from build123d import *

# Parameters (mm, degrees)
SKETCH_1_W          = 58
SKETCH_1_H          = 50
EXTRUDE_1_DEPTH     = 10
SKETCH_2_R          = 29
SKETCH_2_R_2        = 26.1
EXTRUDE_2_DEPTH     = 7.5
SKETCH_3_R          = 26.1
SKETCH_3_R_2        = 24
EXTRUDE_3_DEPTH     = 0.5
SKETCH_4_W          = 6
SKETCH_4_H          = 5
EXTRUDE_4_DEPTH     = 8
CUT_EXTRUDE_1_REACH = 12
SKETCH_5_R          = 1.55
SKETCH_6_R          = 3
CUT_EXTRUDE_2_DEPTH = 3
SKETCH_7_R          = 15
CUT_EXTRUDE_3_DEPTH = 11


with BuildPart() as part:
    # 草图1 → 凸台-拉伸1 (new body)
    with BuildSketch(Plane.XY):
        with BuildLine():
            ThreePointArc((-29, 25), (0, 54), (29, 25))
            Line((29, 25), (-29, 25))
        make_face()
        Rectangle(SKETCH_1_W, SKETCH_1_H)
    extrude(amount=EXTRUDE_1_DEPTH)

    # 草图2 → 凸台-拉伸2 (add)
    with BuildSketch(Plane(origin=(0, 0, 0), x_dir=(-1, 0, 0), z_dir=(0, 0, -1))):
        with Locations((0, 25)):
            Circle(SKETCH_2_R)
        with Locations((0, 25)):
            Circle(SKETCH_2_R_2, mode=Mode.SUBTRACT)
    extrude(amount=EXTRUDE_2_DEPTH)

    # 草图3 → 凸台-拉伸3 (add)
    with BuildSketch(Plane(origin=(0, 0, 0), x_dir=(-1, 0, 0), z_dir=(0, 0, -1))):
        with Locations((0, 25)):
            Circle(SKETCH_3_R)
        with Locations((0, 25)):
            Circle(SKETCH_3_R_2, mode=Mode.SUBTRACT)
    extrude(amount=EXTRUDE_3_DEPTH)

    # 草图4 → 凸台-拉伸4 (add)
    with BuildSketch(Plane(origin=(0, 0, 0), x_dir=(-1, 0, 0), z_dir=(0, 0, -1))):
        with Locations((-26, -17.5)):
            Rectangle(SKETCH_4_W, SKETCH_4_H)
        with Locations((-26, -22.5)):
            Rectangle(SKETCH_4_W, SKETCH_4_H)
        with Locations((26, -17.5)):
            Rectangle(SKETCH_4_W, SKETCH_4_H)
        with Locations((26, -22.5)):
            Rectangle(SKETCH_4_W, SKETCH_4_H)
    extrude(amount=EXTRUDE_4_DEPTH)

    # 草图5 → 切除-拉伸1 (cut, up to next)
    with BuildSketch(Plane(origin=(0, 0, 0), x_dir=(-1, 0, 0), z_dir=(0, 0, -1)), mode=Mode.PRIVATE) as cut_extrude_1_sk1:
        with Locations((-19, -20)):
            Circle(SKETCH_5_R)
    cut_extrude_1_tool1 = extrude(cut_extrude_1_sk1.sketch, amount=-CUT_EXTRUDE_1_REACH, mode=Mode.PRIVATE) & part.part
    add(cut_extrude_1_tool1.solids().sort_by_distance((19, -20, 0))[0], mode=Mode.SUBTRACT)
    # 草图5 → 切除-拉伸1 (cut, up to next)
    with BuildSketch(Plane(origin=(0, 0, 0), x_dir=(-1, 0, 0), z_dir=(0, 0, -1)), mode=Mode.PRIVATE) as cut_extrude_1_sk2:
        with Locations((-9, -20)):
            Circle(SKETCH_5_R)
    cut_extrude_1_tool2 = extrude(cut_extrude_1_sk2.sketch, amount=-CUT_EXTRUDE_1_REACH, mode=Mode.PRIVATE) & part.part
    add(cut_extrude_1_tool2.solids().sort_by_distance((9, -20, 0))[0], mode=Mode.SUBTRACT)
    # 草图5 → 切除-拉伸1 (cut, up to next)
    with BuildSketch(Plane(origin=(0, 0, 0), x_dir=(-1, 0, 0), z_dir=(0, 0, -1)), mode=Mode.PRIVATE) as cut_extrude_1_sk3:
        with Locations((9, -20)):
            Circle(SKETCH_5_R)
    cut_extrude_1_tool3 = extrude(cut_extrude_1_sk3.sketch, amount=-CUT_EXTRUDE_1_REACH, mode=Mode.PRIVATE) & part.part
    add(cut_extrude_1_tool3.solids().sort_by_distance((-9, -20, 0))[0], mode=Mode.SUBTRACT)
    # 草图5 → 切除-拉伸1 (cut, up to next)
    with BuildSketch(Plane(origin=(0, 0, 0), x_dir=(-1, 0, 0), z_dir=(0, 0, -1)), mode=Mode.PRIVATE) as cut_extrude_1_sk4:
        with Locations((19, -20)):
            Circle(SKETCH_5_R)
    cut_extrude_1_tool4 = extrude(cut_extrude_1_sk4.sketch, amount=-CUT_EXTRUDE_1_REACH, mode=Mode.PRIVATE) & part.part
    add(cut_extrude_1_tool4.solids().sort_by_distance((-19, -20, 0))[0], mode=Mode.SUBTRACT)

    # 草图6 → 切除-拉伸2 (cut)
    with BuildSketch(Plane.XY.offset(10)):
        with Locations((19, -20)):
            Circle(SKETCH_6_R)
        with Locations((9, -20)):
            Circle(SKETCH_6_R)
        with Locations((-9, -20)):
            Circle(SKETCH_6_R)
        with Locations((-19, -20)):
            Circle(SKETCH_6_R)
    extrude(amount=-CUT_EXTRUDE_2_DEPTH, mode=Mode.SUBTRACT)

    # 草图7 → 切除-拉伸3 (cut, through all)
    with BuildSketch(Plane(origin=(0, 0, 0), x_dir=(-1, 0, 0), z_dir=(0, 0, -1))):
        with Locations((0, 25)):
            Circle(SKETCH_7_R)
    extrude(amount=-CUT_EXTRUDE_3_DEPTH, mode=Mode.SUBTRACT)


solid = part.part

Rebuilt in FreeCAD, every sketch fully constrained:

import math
import FreeCAD as App
import Part
import Sketcher
Q = App.Units.Quantity


def add_polygon(sketch, points):
    """Adds a closed chain of lines whose ends are joined by coincident constraints."""
    first, n = sketch.GeometryCount, len(points)
    for a, b in zip(points, points[1:] + points[:1]):
        sketch.addGeometry(Part.LineSegment(App.Vector(*a, 0), App.Vector(*b, 0)), False)
    for i in range(n):
        sketch.addConstraint(Sketcher.Constraint("Coincident", first + i, 2, first + (i + 1) % n, 1))

doc = App.newDocument("Part")
params = doc.addObject("Spreadsheet::Sheet", "Params")
for row, (alias, value) in enumerate([
    ("sketch1_radius", "29 mm"),
    ("sketch1_height", "50 mm"),
    ("pad1_length", "10 mm"),
    ("sketch2_diameter", "58 mm"),
    ("sketch2_diameter2", "52.2 mm"),
    ("pad2_length", "7.5 mm"),
    ("sketch3_diameter", "48 mm"),
    ("sketch3_diameter2", "52.2 mm"),
    ("pad3_length", "0.5 mm"),
    ("sketch4_width", "6 mm"),
    ("sketch4_height", "10 mm"),
    ("pad4_length", "8 mm"),
    ("sketch5_diameter", "3.1 mm"),
    ("sketch6_diameter", "3.1 mm"),
    ("sketch7_diameter", "3.1 mm"),
    ("sketch8_diameter", "3.1 mm"),
    ("sketch9_diameter", "6 mm"),
    ("pocket5_length", "3 mm"),
    ("sketch10_diameter", "30 mm"),
], start=1):
    params.set(f"A{row}", alias)
    params.set(f"B{row}", "=" + value)
    params.setAlias(f"B{row}", alias)

body = doc.addObject("PartDesign::Body", "Body")

# Sketch on XY plane
sketch1 = body.newObject("Sketcher::SketchObject", "Sketch")
sketch1.AttachmentSupport = (doc.getObject("XY_Plane"), [""])
sketch1.MapMode = "FlatFace"
sketch1.addGeometry(Part.ArcOfCircle(Part.Circle(App.Vector(0, 25, 0), App.Vector(0, 0, 1), 29), math.radians(0), math.radians(180)), False)
sketch1.addGeometry(Part.LineSegment(App.Vector(-29, 25, 0), App.Vector(-29, -25, 0)), False)
sketch1.addGeometry(Part.LineSegment(App.Vector(-29, -25, 0), App.Vector(29, -25, 0)), False)
sketch1.addGeometry(Part.LineSegment(App.Vector(29, -25, 0), App.Vector(29, 25, 0)), False)
sketch1.addConstraint(Sketcher.Constraint("Tangent", 0, 2, 1, 1))
sketch1.addConstraint(Sketcher.Constraint("Coincident", 1, 2, 2, 1))
sketch1.addConstraint(Sketcher.Constraint("Coincident", 2, 2, 3, 1))
sketch1.addConstraint(Sketcher.Constraint("Tangent", 3, 2, 0, 1))
sketch1.addConstraint(Sketcher.Constraint("Vertical", 1))
sketch1.addConstraint(Sketcher.Constraint("Horizontal", 2))
sketch1.addConstraint(Sketcher.Constraint("Vertical", 3))
sketch1.addConstraint(Sketcher.Constraint("Symmetric", 0, 2, 2, 2, -1, 1))
sketch1.addConstraint(Sketcher.Constraint("Radius", 0, Q("29 mm")))
sketch1.addConstraint(Sketcher.Constraint("DistanceY", 1, 2, 1, 1, Q("50 mm")))
sketch1.setExpression("Constraints[8]", "Params.sketch1_radius")
sketch1.setExpression("Constraints[9]", "Params.sketch1_height")
pad1 = body.newObject("PartDesign::Pad", "Pad")
pad1.Profile = sketch1
pad1.setExpression("Length", "Params.pad1_length")

# Sketch on XY plane
sketch2 = body.newObject("Sketcher::SketchObject", "Sketch001")
sketch2.AttachmentSupport = (doc.getObject("XY_Plane"), [""])
sketch2.MapMode = "FlatFace"
sketch2.addGeometry(Part.Circle(App.Vector(0, 25, 0), App.Vector(0, 0, 1), 29), False)
sketch2.addGeometry(Part.Circle(App.Vector(0, 25, 0), App.Vector(0, 0, 1), 26.1), False)
sketch2.addConstraint(Sketcher.Constraint("Coincident", 1, 3, 0, 3))
sketch2.addConstraint(Sketcher.Constraint("PointOnObject", 0, 3, -2))
sketch2.addConstraint(Sketcher.Constraint("Diameter", 0, Q("58 mm")))
sketch2.addConstraint(Sketcher.Constraint("Diameter", 1, Q("52.2 mm")))
sketch2.addConstraint(Sketcher.Constraint("DistanceY", -1, 1, 0, 3, Q("25 mm")))
sketch2.setExpression("Constraints[2]", "Params.sketch2_diameter")
sketch2.setExpression("Constraints[3]", "Params.sketch2_diameter2")
pad2 = body.newObject("PartDesign::Pad", "Pad001")
pad2.Profile = sketch2
pad2.setExpression("Length", "Params.pad2_length")
pad2.Reversed = True

# Sketch on XY plane
sketch3 = body.newObject("Sketcher::SketchObject", "Sketch002")
sketch3.AttachmentSupport = (doc.getObject("XY_Plane"), [""])
sketch3.MapMode = "FlatFace"
sketch3.addGeometry(Part.Circle(App.Vector(0, 25, 0), App.Vector(0, 0, 1), 26.1), False)
sketch3.addGeometry(Part.Circle(App.Vector(0, 25, 0), App.Vector(0, 0, 1), 24), False)
sketch3.addConstraint(Sketcher.Constraint("Coincident", 1, 3, 0, 3))
sketch3.addConstraint(Sketcher.Constraint("PointOnObject", 0, 3, -2))
sketch3.addConstraint(Sketcher.Constraint("Diameter", 1, Q("48 mm")))
sketch3.addConstraint(Sketcher.Constraint("Diameter", 0, Q("52.2 mm")))
sketch3.addConstraint(Sketcher.Constraint("DistanceY", -1, 1, 0, 3, Q("25 mm")))
sketch3.setExpression("Constraints[2]", "Params.sketch3_diameter")
sketch3.setExpression("Constraints[3]", "Params.sketch3_diameter2")
pad3 = body.newObject("PartDesign::Pad", "Pad002")
pad3.Profile = sketch3
pad3.setExpression("Length", "Params.pad3_length")
pad3.Reversed = True

# Sketch on XY plane
sketch4 = body.newObject("Sketcher::SketchObject", "Sketch003")
sketch4.AttachmentSupport = (doc.getObject("XY_Plane"), [""])
sketch4.MapMode = "FlatFace"
add_polygon(sketch4, [(29, -15), (29, -25), (23, -25), (23, -15)])  # lines 0-3
add_polygon(sketch4, [(-23, -15), (-23, -25), (-29, -25), (-29, -15)])  # lines 4-7
sketch4.addConstraint(Sketcher.Constraint("Vertical", 0))
sketch4.addConstraint(Sketcher.Constraint("Horizontal", 1))
sketch4.addConstraint(Sketcher.Constraint("Vertical", 2))
sketch4.addConstraint(Sketcher.Constraint("Horizontal", 3))
sketch4.addConstraint(Sketcher.Constraint("Vertical", 4))
sketch4.addConstraint(Sketcher.Constraint("Horizontal", 5))
sketch4.addConstraint(Sketcher.Constraint("Vertical", 6))
sketch4.addConstraint(Sketcher.Constraint("Horizontal", 7))
sketch4.addConstraint(Sketcher.Constraint("Symmetric", 1, 2, 4, 2, -2))
sketch4.addConstraint(Sketcher.Constraint("Symmetric", 3, 2, 6, 2, -2))
sketch4.addConstraint(Sketcher.Constraint("DistanceX", 1, 2, 1, 1, Q("6 mm")))
sketch4.addConstraint(Sketcher.Constraint("DistanceY", 0, 2, 0, 1, Q("10 mm")))
sketch4.addConstraint(Sketcher.Constraint("DistanceX", -1, 1, 0, 2, Q("29 mm")))
sketch4.addConstraint(Sketcher.Constraint("DistanceY", 0, 2, -1, 1, Q("25 mm")))
sketch4.setExpression("Constraints[18]", "Params.sketch4_width")
sketch4.setExpression("Constraints[19]", "Params.sketch4_height")
pad4 = body.newObject("PartDesign::Pad", "Pad003")
pad4.Profile = sketch4
pad4.setExpression("Length", "Params.pad4_length")
pad4.Reversed = True

# Sketch on XY plane
sketch5 = body.newObject("Sketcher::SketchObject", "Sketch004")
sketch5.AttachmentSupport = (doc.getObject("XY_Plane"), [""])
sketch5.MapMode = "FlatFace"
sketch5.addGeometry(Part.Circle(App.Vector(19, -20, 0), App.Vector(0, 0, 1), 1.55), False)
sketch5.addConstraint(Sketcher.Constraint("Diameter", 0, Q("3.1 mm")))
sketch5.addConstraint(Sketcher.Constraint("DistanceX", -1, 1, 0, 3, Q("19 mm")))
sketch5.addConstraint(Sketcher.Constraint("DistanceY", 0, 3, -1, 1, Q("20 mm")))
sketch5.setExpression("Constraints[0]", "Params.sketch5_diameter")
pocket1 = body.newObject("PartDesign::Pocket", "Pocket")
pocket1.Profile = sketch5
pocket1.Type = "UpToFirst"
pocket1.Reversed = True

# Sketch on XY plane
sketch6 = body.newObject("Sketcher::SketchObject", "Sketch005")
sketch6.AttachmentSupport = (doc.getObject("XY_Plane"), [""])
sketch6.MapMode = "FlatFace"
sketch6.addGeometry(Part.Circle(App.Vector(9, -20, 0), App.Vector(0, 0, 1), 1.55), False)
sketch6.addConstraint(Sketcher.Constraint("Diameter", 0, Q("3.1 mm")))
sketch6.addConstraint(Sketcher.Constraint("DistanceX", -1, 1, 0, 3, Q("9 mm")))
sketch6.addConstraint(Sketcher.Constraint("DistanceY", 0, 3, -1, 1, Q("20 mm")))
sketch6.setExpression("Constraints[0]", "Params.sketch6_diameter")
pocket2 = body.newObject("PartDesign::Pocket", "Pocket001")
pocket2.Profile = sketch6
pocket2.Type = "UpToFirst"
pocket2.Reversed = True

# Sketch on XY plane
sketch7 = body.newObject("Sketcher::SketchObject", "Sketch006")
sketch7.AttachmentSupport = (doc.getObject("XY_Plane"), [""])
sketch7.MapMode = "FlatFace"
sketch7.addGeometry(Part.Circle(App.Vector(-9, -20, 0), App.Vector(0, 0, 1), 1.55), False)
sketch7.addConstraint(Sketcher.Constraint("Diameter", 0, Q("3.1 mm")))
sketch7.addConstraint(Sketcher.Constraint("DistanceX", 0, 3, -1, 1, Q("9 mm")))
sketch7.addConstraint(Sketcher.Constraint("DistanceY", 0, 3, -1, 1, Q("20 mm")))
sketch7.setExpression("Constraints[0]", "Params.sketch7_diameter")
pocket3 = body.newObject("PartDesign::Pocket", "Pocket002")
pocket3.Profile = sketch7
pocket3.Type = "UpToFirst"
pocket3.Reversed = True

# Sketch on XY plane
sketch8 = body.newObject("Sketcher::SketchObject", "Sketch007")
sketch8.AttachmentSupport = (doc.getObject("XY_Plane"), [""])
sketch8.MapMode = "FlatFace"
sketch8.addGeometry(Part.Circle(App.Vector(-19, -20, 0), App.Vector(0, 0, 1), 1.55), False)
sketch8.addConstraint(Sketcher.Constraint("Diameter", 0, Q("3.1 mm")))
sketch8.addConstraint(Sketcher.Constraint("DistanceX", 0, 3, -1, 1, Q("19 mm")))
sketch8.addConstraint(Sketcher.Constraint("DistanceY", 0, 3, -1, 1, Q("20 mm")))
sketch8.setExpression("Constraints[0]", "Params.sketch8_diameter")
pocket4 = body.newObject("PartDesign::Pocket", "Pocket003")
pocket4.Profile = sketch8
pocket4.Type = "UpToFirst"
pocket4.Reversed = True

# Sketch on XY plane
sketch9 = body.newObject("Sketcher::SketchObject", "Sketch008")
sketch9.AttachmentSupport = (doc.getObject("XY_Plane"), [""])
sketch9.MapMode = "FlatFace"
sketch9.AttachmentOffset = App.Placement(App.Vector(0, 0, 10), App.Rotation())
sketch9.addGeometry(Part.Circle(App.Vector(19, -20, 0), App.Vector(0, 0, 1), 3), False)
sketch9.addGeometry(Part.Circle(App.Vector(9, -20, 0), App.Vector(0, 0, 1), 3), False)
sketch9.addGeometry(Part.Circle(App.Vector(-9, -20, 0), App.Vector(0, 0, 1), 3), False)
sketch9.addGeometry(Part.Circle(App.Vector(-19, -20, 0), App.Vector(0, 0, 1), 3), False)
sketch9.addConstraint(Sketcher.Constraint("Equal", 0, 1))
sketch9.addConstraint(Sketcher.Constraint("Equal", 1, 2))
sketch9.addConstraint(Sketcher.Constraint("Equal", 2, 3))
sketch9.addConstraint(Sketcher.Constraint("Symmetric", 1, 3, 2, 3, -2))
sketch9.addConstraint(Sketcher.Constraint("Symmetric", 0, 3, 3, 3, -2))
sketch9.addConstraint(Sketcher.Constraint("Horizontal", 0, 3, 1, 3))
sketch9.addConstraint(Sketcher.Constraint("Diameter", 0, Q("6 mm")))
sketch9.addConstraint(Sketcher.Constraint("DistanceX", -1, 1, 0, 3, Q("19 mm")))
sketch9.addConstraint(Sketcher.Constraint("DistanceY", 0, 3, -1, 1, Q("20 mm")))
sketch9.addConstraint(Sketcher.Constraint("DistanceX", -1, 1, 1, 3, Q("9 mm")))
sketch9.setExpression("Constraints[6]", "Params.sketch9_diameter")
pocket5 = body.newObject("PartDesign::Pocket", "Pocket004")
pocket5.Profile = sketch9
pocket5.setExpression("Length", "Params.pocket5_length")

# Sketch on XY plane
sketch10 = body.newObject("Sketcher::SketchObject", "Sketch009")
sketch10.AttachmentSupport = (doc.getObject("XY_Plane"), [""])
sketch10.MapMode = "FlatFace"
sketch10.addGeometry(Part.Circle(App.Vector(0, 25, 0), App.Vector(0, 0, 1), 15), False)
sketch10.addConstraint(Sketcher.Constraint("PointOnObject", 0, 3, -2))
sketch10.addConstraint(Sketcher.Constraint("Diameter", 0, Q("30 mm")))
sketch10.addConstraint(Sketcher.Constraint("DistanceY", -1, 1, 0, 3, Q("25 mm")))
sketch10.setExpression("Constraints[1]", "Params.sketch10_diameter")
pocket6 = body.newObject("PartDesign::Pocket", "Pocket005")
pocket6.Profile = sketch10
pocket6.Type = "ThroughAll"
pocket6.Reversed = True

doc.recompute()
